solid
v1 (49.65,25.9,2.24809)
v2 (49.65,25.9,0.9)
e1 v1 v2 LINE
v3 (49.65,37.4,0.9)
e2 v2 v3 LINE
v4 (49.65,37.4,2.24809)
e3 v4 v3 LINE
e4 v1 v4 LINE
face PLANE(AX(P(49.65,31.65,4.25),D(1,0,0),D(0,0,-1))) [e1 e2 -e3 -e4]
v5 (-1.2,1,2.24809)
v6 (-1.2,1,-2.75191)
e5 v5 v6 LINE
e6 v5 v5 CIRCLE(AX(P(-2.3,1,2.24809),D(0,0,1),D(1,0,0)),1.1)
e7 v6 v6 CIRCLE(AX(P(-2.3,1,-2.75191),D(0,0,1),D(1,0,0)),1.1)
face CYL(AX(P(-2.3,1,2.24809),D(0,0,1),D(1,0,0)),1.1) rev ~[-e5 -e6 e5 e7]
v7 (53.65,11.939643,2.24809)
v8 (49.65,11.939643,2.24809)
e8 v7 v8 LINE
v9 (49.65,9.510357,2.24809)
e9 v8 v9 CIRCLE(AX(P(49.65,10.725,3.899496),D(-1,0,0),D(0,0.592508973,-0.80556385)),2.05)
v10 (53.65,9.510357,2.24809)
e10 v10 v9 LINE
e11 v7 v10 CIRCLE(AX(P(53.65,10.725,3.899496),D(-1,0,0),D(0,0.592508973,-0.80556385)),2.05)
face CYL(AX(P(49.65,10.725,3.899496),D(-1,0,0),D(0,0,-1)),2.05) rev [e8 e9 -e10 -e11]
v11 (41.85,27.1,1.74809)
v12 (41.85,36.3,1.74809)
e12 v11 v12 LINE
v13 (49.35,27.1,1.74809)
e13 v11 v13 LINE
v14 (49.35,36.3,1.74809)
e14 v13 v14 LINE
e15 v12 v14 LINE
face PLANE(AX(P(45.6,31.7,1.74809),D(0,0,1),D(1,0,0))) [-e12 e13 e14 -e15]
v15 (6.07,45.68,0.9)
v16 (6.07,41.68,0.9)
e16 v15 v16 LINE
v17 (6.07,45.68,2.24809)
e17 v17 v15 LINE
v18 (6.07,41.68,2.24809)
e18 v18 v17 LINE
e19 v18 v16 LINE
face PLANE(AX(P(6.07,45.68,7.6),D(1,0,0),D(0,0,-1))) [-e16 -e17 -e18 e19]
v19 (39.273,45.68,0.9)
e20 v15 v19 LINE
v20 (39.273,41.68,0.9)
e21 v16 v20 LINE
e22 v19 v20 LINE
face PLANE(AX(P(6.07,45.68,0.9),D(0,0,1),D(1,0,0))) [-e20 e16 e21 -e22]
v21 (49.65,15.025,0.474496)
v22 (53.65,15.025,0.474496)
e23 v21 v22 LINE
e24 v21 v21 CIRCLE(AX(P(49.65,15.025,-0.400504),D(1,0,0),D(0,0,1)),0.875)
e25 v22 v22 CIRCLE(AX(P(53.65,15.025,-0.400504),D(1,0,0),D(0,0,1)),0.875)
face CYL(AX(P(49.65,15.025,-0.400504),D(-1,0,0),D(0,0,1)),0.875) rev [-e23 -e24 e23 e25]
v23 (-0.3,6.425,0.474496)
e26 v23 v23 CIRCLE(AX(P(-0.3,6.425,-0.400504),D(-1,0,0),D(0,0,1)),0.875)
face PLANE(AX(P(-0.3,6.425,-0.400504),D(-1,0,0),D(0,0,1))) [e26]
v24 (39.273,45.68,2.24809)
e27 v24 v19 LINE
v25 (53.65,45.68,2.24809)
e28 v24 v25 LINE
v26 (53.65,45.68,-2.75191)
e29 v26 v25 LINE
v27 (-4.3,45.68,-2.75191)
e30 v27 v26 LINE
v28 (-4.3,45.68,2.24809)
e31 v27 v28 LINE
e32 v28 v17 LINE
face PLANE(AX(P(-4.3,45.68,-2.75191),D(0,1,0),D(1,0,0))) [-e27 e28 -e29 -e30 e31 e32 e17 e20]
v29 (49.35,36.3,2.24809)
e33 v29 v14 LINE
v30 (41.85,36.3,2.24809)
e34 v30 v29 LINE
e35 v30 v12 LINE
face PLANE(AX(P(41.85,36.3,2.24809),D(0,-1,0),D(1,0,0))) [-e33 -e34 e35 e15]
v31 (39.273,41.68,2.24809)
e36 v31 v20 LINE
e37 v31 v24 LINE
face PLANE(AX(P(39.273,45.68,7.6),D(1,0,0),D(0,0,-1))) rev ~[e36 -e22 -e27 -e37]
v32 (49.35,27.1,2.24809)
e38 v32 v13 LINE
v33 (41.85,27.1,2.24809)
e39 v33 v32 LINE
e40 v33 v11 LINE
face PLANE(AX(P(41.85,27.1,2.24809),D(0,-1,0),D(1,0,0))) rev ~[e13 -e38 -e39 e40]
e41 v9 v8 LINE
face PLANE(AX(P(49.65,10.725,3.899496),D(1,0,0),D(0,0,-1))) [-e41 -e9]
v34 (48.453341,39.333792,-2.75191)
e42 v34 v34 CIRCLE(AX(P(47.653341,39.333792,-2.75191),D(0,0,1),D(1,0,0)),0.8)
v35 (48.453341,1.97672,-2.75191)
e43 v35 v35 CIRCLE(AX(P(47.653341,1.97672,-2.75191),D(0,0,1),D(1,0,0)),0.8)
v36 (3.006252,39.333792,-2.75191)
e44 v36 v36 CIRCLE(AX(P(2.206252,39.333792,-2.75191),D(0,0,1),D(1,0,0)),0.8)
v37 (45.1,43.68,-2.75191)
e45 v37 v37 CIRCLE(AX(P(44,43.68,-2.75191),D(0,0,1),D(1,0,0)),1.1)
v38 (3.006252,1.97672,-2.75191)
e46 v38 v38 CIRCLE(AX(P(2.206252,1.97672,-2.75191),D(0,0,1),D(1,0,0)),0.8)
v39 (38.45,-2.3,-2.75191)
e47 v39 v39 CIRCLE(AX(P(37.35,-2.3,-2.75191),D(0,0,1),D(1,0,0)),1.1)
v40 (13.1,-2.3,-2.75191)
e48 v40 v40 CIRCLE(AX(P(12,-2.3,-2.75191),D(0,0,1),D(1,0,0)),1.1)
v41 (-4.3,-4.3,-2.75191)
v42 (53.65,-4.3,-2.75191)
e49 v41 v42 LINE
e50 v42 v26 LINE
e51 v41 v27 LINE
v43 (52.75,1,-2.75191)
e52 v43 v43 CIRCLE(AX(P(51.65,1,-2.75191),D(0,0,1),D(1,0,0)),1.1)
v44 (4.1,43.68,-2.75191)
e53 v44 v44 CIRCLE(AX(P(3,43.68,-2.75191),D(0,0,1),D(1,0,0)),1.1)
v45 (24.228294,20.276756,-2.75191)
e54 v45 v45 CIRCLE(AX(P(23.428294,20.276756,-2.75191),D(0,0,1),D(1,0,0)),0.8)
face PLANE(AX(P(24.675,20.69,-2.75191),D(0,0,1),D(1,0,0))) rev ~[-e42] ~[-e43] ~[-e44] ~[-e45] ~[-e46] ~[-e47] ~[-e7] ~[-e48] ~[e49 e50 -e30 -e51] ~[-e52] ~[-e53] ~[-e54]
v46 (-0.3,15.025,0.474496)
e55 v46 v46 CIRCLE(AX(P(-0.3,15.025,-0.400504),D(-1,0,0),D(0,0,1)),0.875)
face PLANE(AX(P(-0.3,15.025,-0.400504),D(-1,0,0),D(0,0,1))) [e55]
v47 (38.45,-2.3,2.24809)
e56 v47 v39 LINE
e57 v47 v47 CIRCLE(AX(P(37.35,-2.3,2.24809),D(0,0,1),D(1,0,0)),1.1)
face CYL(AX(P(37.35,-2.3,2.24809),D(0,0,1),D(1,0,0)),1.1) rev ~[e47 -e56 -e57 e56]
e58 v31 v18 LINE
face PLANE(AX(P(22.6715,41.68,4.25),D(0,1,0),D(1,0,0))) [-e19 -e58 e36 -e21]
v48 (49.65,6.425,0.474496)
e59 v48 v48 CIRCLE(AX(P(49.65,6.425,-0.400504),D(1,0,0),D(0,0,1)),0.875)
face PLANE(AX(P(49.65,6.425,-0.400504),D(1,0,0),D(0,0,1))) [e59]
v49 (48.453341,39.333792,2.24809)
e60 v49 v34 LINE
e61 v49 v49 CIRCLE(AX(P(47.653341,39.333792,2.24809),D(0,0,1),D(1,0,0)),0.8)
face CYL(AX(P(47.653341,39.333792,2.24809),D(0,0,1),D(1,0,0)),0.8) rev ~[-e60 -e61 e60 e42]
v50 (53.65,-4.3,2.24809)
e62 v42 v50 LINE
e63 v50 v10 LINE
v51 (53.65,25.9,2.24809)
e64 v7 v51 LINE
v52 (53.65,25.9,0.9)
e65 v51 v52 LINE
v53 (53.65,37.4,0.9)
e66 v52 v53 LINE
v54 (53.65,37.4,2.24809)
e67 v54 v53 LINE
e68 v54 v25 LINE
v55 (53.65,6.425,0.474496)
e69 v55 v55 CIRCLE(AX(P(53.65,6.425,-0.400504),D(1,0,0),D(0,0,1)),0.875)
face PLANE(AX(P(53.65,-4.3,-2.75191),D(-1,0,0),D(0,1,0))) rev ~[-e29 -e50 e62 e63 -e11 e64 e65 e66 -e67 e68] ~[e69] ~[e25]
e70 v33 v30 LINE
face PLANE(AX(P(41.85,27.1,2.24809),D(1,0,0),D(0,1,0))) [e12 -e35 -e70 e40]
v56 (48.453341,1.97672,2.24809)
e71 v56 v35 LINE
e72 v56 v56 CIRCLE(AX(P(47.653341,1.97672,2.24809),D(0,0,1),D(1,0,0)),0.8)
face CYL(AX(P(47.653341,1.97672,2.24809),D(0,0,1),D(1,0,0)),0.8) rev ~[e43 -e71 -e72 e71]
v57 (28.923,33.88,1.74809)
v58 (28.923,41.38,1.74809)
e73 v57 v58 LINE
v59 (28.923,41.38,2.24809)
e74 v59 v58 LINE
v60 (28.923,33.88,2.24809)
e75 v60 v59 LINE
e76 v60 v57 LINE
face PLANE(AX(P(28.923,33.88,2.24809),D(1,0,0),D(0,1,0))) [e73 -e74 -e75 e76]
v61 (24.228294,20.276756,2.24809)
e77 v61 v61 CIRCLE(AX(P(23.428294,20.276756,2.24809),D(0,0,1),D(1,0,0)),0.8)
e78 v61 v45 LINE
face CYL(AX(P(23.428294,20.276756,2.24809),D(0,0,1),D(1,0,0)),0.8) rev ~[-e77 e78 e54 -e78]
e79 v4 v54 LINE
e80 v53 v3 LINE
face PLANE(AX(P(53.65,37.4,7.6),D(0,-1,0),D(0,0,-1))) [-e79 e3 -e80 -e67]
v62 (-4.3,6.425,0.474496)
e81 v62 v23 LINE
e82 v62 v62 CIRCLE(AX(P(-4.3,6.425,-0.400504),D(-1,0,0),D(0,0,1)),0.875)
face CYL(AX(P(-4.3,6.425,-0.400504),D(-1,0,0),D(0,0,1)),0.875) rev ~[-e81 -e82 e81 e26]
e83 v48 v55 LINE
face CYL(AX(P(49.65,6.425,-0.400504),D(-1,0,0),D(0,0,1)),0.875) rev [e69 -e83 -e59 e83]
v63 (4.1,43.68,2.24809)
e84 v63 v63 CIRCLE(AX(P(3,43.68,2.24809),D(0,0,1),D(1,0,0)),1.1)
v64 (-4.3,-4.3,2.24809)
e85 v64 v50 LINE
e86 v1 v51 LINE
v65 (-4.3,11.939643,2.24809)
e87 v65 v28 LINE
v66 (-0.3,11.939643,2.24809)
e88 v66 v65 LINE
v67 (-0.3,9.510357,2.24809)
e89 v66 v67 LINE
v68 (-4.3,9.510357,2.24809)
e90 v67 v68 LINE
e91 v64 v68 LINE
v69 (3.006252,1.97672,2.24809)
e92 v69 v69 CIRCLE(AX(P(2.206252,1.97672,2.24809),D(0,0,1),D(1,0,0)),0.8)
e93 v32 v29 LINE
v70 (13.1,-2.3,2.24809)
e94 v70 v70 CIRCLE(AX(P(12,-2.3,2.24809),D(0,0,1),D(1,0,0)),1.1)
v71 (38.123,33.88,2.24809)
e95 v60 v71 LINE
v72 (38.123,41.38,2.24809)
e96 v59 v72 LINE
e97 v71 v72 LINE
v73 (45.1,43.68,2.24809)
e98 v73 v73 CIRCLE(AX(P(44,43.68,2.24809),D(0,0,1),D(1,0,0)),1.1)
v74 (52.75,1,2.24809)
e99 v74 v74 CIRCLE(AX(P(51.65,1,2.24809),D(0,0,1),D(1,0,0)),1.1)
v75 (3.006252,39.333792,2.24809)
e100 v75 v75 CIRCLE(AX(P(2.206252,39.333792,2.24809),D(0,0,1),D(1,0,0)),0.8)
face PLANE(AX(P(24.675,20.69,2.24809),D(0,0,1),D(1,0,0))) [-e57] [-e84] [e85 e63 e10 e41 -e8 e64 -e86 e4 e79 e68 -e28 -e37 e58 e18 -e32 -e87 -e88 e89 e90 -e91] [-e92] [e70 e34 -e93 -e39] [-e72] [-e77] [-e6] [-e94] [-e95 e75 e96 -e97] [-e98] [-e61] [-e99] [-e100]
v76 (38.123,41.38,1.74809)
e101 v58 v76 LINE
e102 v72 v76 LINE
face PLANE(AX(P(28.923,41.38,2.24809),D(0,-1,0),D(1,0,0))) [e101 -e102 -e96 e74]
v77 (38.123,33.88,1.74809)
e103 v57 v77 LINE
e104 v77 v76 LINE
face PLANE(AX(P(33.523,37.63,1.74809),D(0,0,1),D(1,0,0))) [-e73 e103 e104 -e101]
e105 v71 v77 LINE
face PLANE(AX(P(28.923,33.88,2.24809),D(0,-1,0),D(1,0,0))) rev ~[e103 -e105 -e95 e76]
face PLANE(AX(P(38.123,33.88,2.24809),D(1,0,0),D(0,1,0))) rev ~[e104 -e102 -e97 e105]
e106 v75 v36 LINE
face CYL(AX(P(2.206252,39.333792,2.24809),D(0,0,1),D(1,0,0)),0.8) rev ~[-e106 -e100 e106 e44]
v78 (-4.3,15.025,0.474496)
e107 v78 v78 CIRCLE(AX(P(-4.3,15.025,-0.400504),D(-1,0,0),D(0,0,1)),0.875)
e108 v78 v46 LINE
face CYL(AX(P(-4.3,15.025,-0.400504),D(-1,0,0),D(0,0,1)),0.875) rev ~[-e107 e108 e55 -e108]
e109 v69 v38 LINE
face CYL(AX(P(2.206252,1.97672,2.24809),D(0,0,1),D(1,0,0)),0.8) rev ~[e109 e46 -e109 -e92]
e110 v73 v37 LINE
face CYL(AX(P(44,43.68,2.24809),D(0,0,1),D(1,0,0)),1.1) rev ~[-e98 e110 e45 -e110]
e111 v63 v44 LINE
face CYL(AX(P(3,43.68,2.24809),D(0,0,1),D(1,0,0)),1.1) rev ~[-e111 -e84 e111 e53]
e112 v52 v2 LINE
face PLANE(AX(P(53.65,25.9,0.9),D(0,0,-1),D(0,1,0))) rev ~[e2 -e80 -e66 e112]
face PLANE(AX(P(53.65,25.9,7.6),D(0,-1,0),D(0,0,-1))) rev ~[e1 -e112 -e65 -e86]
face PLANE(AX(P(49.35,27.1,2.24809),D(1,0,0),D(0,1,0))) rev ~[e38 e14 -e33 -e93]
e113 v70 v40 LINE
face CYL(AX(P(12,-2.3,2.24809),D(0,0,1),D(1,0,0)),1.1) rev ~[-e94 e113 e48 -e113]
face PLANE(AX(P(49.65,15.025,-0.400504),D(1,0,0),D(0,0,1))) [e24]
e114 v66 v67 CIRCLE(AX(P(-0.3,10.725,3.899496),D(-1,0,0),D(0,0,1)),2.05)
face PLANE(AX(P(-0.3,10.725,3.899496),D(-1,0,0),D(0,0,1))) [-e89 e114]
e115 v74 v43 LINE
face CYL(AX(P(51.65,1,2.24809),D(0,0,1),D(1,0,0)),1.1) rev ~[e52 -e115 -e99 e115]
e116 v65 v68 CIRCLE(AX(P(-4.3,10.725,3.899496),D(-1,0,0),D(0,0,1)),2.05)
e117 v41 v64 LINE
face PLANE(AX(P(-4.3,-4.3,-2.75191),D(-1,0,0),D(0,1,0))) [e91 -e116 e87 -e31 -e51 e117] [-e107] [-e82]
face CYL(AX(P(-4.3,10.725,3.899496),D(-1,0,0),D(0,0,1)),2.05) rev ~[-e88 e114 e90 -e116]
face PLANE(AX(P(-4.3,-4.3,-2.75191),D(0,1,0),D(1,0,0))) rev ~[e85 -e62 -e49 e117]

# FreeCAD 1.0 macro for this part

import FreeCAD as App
import Part
import Sketcher

V = App.Vector
Q = App.Units.Quantity


def add_polygon(sketch, points):
    """Adds a closed chain of lines whose ends are joined by coincident constraints."""
    first, n = sketch.GeometryCount, len(points)
    for a, b in zip(points, points[1:] + points[:1]):
        sketch.addGeometry(Part.LineSegment(App.Vector(*a, 0), App.Vector(*b, 0)), False)
    for i in range(n):
        sketch.addConstraint(Sketcher.Constraint("Coincident", first + i, 2, first + (i + 1) % n, 1))

doc = App.newDocument("Part")
body = doc.addObject("PartDesign::Body", "Body")

# Sketch on XY plane
sketch1 = body.newObject("Sketcher::SketchObject", "Sketch")
sketch1.AttachmentSupport = (doc.getObject("XY_Plane"), [""])
sketch1.MapMode = "FlatFace"
sketch1.AttachmentOffset = App.Placement(V(0, 0, -2.75191), App.Rotation())
add_polygon(sketch1, [(-4, 46), (-4, -4), (54, -4), (54, 46)])  # lines 0-3
sketch1.addConstraint(Sketcher.Constraint("Vertical", 0))
sketch1.addConstraint(Sketcher.Constraint("Horizontal", 1))
sketch1.addConstraint(Sketcher.Constraint("Vertical", 2))
sketch1.addConstraint(Sketcher.Constraint("Horizontal", 3))
sketch1.addConstraint(Sketcher.Constraint("DistanceX", 1, 1, 1, 2, Q("57.95 mm")))
sketch1.addConstraint(Sketcher.Constraint("DistanceY", 0, 2, 0, 1, Q("49.98 mm")))
sketch1.addConstraint(Sketcher.Constraint("DistanceX", 0, 2, -1, 1, Q("4.3 mm")))
sketch1.addConstraint(Sketcher.Constraint("DistanceY", 0, 2, -1, 1, Q("4.3 mm")))
pad1 = body.newObject("PartDesign::Pad", "Pad")
pad1.Profile = sketch1
pad1.Length = 5

# Sketch on XY plane
sketch2 = body.newObject("Sketcher::SketchObject", "Sketch001")
sketch2.AttachmentSupport = (doc.getObject("XY_Plane"), [""])
sketch2.MapMode = "FlatFace"
sketch2.AttachmentOffset = App.Placement(V(0, 0, 2.24809), App.Rotation())
sketch2.addGeometry(Part.Circle(V(-2.3, 1, 0), V(0, 0, 1), 1.1), False)
sketch2.addGeometry(Part.Circle(V(51.6, 1, 0), V(0, 0, 1), 1.1), False)
sketch2.addGeometry(Part.Circle(V(12, -2.3, 0), V(0, 0, 1), 1.1), False)
sketch2.addGeometry(Part.Circle(V(37.4, -2.3, 0), V(0, 0, 1), 1.1), False)
sketch2.addGeometry(Part.Circle(V(3, 43.7, 0), V(0, 0, 1), 1.1), False)
sketch2.addGeometry(Part.Circle(V(44, 43.7, 0), V(0, 0, 1), 1.1), False)
sketch2.addConstraint(Sketcher.Constraint("Equal", 0, 1))
sketch2.addConstraint(Sketcher.Constraint("Equal", 1, 2))
sketch2.addConstraint(Sketcher.Constraint("Equal", 2, 3))
sketch2.addConstraint(Sketcher.Constraint("Equal", 3, 4))
sketch2.addConstraint(Sketcher.Constraint("Equal", 4, 5))
sketch2.addConstraint(Sketcher.Constraint("Horizontal", 0, 3, 1, 3))
sketch2.addConstraint(Sketcher.Constraint("Horizontal", 2, 3, 3, 3))
sketch2.addConstraint(Sketcher.Constraint("Horizontal", 4, 3, 5, 3))
sketch2.addConstraint(Sketcher.Constraint("Diameter", 0, Q("2.2 mm")))
sketch2.addConstraint(Sketcher.Constraint("DistanceY", -1, 1, 0, 3, Q("1 mm")))
sketch2.addConstraint(Sketcher.Constraint("DistanceX", -1, 1, 2, 3, Q("12 mm")))
sketch2.addConstraint(Sketcher.Constraint("DistanceX", -1, 1, 4, 3, Q("3 mm")))
sketch2.addConstraint(Sketcher.Constraint("DistanceX", -1, 1, 5, 3, Q("44 mm")))
sketch2.addConstraint(Sketcher.Constraint("DistanceX", 0, 3, -1, 1, Q("2.3 mm")))
sketch2.addConstraint(Sketcher.Constraint("DistanceY", 2, 3, -1, 1, Q("2.3 mm")))
sketch2.addConstraint(Sketcher.Constraint("DistanceX", 3, 3, 1, 3, Q("14.3 mm")))
sketch2.addConstraint(Sketcher.Constraint("DistanceX", -1, 1, 1, 3, Q("51.65 mm")))
sketch2.addConstraint(Sketcher.Constraint("DistanceY", -1, 1, 4, 3, Q("43.68 mm")))
pocket1 = body.newObject("PartDesign::Pocket", "Pocket")
pocket1.Profile = sketch2
pocket1.Type = "ThroughAll"

# Sketch on XY plane
sketch3 = body.newObject("Sketcher::SketchObject", "Sketch002")
sketch3.AttachmentSupport = (doc.getObject("XY_Plane"), [""])
sketch3.MapMode = "FlatFace"
sketch3.AttachmentOffset = App.Placement(V(0, 0, 2.24809), App.Rotation())
sketch3.addGeometry(Part.Circle(V(23.4, 20.3, 0), V(0, 0, 1), 0.8), False)
sketch3.addGeometry(Part.Circle(V(2.2, 39.3, 0), V(0, 0, 1), 0.8), False)
sketch3.addGeometry(Part.Circle(V(47.7, 39.3, 0), V(0, 0, 1), 0.8), False)
sketch3.addGeometry(Part.Circle(V(47.7, 2, 0), V(0, 0, 1), 0.8), False)
sketch3.addGeometry(Part.Circle(V(2.2, 2, 0), V(0, 0, 1), 0.8), False)
sketch3.addConstraint(Sketcher.Constraint("Equal", 0, 1))
sketch3.addConstraint(Sketcher.Constraint("Equal", 1, 2))
sketch3.addConstraint(Sketcher.Constraint("Equal", 2, 3))
sketch3.addConstraint(Sketcher.Constraint("Equal", 3, 4))
sketch3.addConstraint(Sketcher.Constraint("Horizontal", 1, 3, 2, 3))
sketch3.addConstraint(Sketcher.Constraint("Horizontal", 3, 3, 4, 3))
sketch3.addConstraint(Sketcher.Constraint("Vertical", 2, 3, 3, 3))
sketch3.addConstraint(Sketcher.Constraint("Vertical", 1, 3, 4, 3))
sketch3.addConstraint(Sketcher.Constraint("Diameter", 0, Q("1.6 mm")))
sketch3.addConstraint(Sketcher.Constraint("DistanceX", -1, 1, 1, 3, Q("2.206252 mm")))
sketch3.addConstraint(Sketcher.Constraint("DistanceY", -1, 1, 1, 3, Q("39.333792 mm")))
sketch3.addConstraint(Sketcher.Constraint("DistanceX", -1, 1, 2, 3, Q("47.653341 mm")))
sketch3.addConstraint(Sketcher.Constraint("DistanceY", -1, 1, 3, 3, Q("1.97672 mm")))
sketch3.addConstraint(Sketcher.Constraint("DistanceX", -1, 1, 0, 3, Q("23.428294 mm")))
sketch3.addConstraint(Sketcher.Constraint("DistanceY", -1, 1, 0, 3, Q("20.276756 mm")))
pocket2 = body.newObject("PartDesign::Pocket", "Pocket001")
pocket2.Profile = sketch3
pocket2.Type = "ThroughAll"

# Sketch on YZ plane
sketch4 = body.newObject("Sketcher::SketchObject", "Sketch003")
sketch4.AttachmentSupport = (doc.getObject("YZ_Plane"), [""])
sketch4.MapMode = "FlatFace"
sketch4.AttachmentOffset = App.Placement(V(0, 0, -4.3), App.Rotation())
sketch4.addGeometry(Part.Circle(V(10.7, 3.9, 0), V(0, 0, 1), 2), False)
sketch4.addConstraint(Sketcher.Constraint("Diameter", 0, Q("4.1 mm")))
sketch4.addConstraint(Sketcher.Constraint("DistanceX", -1, 1, 0, 3, Q("10.725 mm")))
sketch4.addConstraint(Sketcher.Constraint("DistanceY", -1, 1, 0, 3, Q("3.899496 mm")))
pocket3 = body.newObject("PartDesign::Pocket", "Pocket002")
pocket3.Profile = sketch4
pocket3.Length = 4
pocket3.Reversed = True

# Sketch on YZ plane
sketch5 = body.newObject("Sketcher::SketchObject", "Sketch004")
sketch5.AttachmentSupport = (doc.getObject("YZ_Plane"), [""])
sketch5.MapMode = "FlatFace"
sketch5.AttachmentOffset = App.Placement(V(0, 0, -4.3), App.Rotation())
sketch5.addGeometry(Part.Circle(V(6.4, -0.4, 0), V(0, 0, 1), 0.9), False)
sketch5.addGeometry(Part.Circle(V(15, -0.4, 0), V(0, 0, 1), 0.9), False)
sketch5.addConstraint(Sketcher.Constraint("Equal", 0, 1))
sketch5.addConstraint(Sketcher.Constraint("Horizontal", 0, 3, 1, 3))
sketch5.addConstraint(Sketcher.Constraint("Diameter", 0, Q("1.75 mm")))
sketch5.addConstraint(Sketcher.Constraint("DistanceX", 0, 3, 1, 3, Q("8.6 mm")))
sketch5.addConstraint(Sketcher.Constraint("DistanceX", -1, 1, 0, 3, Q("6.425 mm")))
sketch5.addConstraint(Sketcher.Constraint("DistanceY", 0, 3, -1, 1, Q("0.400504 mm")))
pocket4 = body.newObject("PartDesign::Pocket", "Pocket003")
pocket4.Profile = sketch5
pocket4.Length = 4
pocket4.Reversed = True

# Sketch on YZ plane
sketch6 = body.newObject("Sketcher::SketchObject", "Sketch005")
sketch6.AttachmentSupport = (doc.getObject("YZ_Plane"), [""])
sketch6.MapMode = "FlatFace"
sketch6.AttachmentOffset = App.Placement(V(0, 0, 49.65), App.Rotation())
sketch6.addGeometry(Part.Circle(V(10.7, 3.9, 0), V(0, 0, 1), 2), False)
sketch6.addConstraint(Sketcher.Constraint("Diameter", 0, Q("4.1 mm")))
sketch6.addConstraint(Sketcher.Constraint("DistanceX", -1, 1, 0, 3, Q("10.725 mm")))
sketch6.addConstraint(Sketcher.Constraint("DistanceY", -1, 1, 0, 3, Q("3.899496 mm")))
pocket5 = body.newObject("PartDesign::Pocket", "Pocket004")
pocket5.Profile = sketch6
pocket5.Length = 4
pocket5.Reversed = True

# Sketch on YZ plane
sketch7 = body.newObject("Sketcher::SketchObject", "Sketch006")
sketch7.AttachmentSupport = (doc.getObject("YZ_Plane"), [""])
sketch7.MapMode = "FlatFace"
sketch7.AttachmentOffset = App.Placement(V(0, 0, 49.65), App.Rotation())
sketch7.addGeometry(Part.Circle(V(6.4, -0.4, 0), V(0, 0, 1), 0.9), False)
sketch7.addGeometry(Part.Circle(V(15, -0.4, 0), V(0, 0, 1), 0.9), False)
sketch7.addConstraint(Sketcher.Constraint("Equal", 0, 1))
sketch7.addConstraint(Sketcher.Constraint("Horizontal", 0, 3, 1, 3))
sketch7.addConstraint(Sketcher.Constraint("Diameter", 0, Q("1.75 mm")))
sketch7.addConstraint(Sketcher.Constraint("DistanceX", 0, 3, 1, 3, Q("8.6 mm")))
sketch7.addConstraint(Sketcher.Constraint("DistanceX", -1, 1, 0, 3, Q("6.425 mm")))
sketch7.addConstraint(Sketcher.Constraint("DistanceY", 0, 3, -1, 1, Q("0.400504 mm")))
pocket6 = body.newObject("PartDesign::Pocket", "Pocket005")
pocket6.Profile = sketch7
pocket6.Length = 4
pocket6.Reversed = True

# Sketch on YZ plane
sketch8 = body.newObject("Sketcher::SketchObject", "Sketch007")
sketch8.AttachmentSupport = (doc.getObject("YZ_Plane"), [""])
sketch8.MapMode = "FlatFace"
sketch8.AttachmentOffset = App.Placement(V(0, 0, 53.65), App.Rotation())
add_polygon(sketch8, [(37, 8), (26, 8), (26, 1), (37, 1)])  # lines 0-3
sketch8.addConstraint(Sketcher.Constraint("Horizontal", 0))
sketch8.addConstraint(Sketcher.Constraint("Vertical", 1))
sketch8.addConstraint(Sketcher.Constraint("Horizontal", 2))
sketch8.addConstraint(Sketcher.Constraint("Vertical", 3))
sketch8.addConstraint(Sketcher.Constraint("DistanceX", 0, 2, 0, 1, Q("11.5 mm")))
sketch8.addConstraint(Sketcher.Constraint("DistanceY", 1, 2, 1, 1, Q("6.7 mm")))
sketch8.addConstraint(Sketcher.Constraint("DistanceX", -1, 1, 0, 2, Q("25.9 mm")))
sketch8.addConstraint(Sketcher.Constraint("DistanceY", -1, 1, 0, 2, Q("7.6 mm")))
pocket7 = body.newObject("PartDesign::Pocket", "Pocket006")
pocket7.Profile = sketch8
pocket7.Length = 4

# Sketch on XZ plane
sketch9 = body.newObject("Sketcher::SketchObject", "Sketch008")
sketch9.AttachmentSupport = (doc.getObject("XZ_Plane"), [""])
sketch9.MapMode = "FlatFace"
sketch9.AttachmentOffset = App.Placement(V(0, 0, -45.68), App.Rotation())
add_polygon(sketch9, [(6, 1), (6, 8), (39, 8), (39, 1)])  # lines 0-3
sketch9.addConstraint(Sketcher.Constraint("Vertical", 0))
sketch9.addConstraint(Sketcher.Constraint("Horizontal", 1))
sketch9.addConstraint(Sketcher.Constraint("Vertical", 2))
sketch9.addConstraint(Sketcher.Constraint("Horizontal", 3))
sketch9.addConstraint(Sketcher.Constraint("DistanceY", 0, 1, 0, 2, Q("6.7 mm")))
sketch9.addConstraint(Sketcher.Constraint("DistanceY", -1, 1, 0, 2, Q("7.6 mm")))
sketch9.addConstraint(Sketcher.Constraint("DistanceX", 1, 1, 1, 2, Q("33.203 mm")))
sketch9.addConstraint(Sketcher.Constraint("DistanceX", -1, 1, 0, 2, Q("6.07 mm")))
pocket8 = body.newObject("PartDesign::Pocket", "Pocket007")
pocket8.Profile = sketch9
pocket8.Length = 4
pocket8.Reversed = True

# Sketch on XY plane
sketch10 = body.newObject("Sketcher::SketchObject", "Sketch009")
sketch10.AttachmentSupport = (doc.getObject("XY_Plane"), [""])
sketch10.MapMode = "FlatFace"
sketch10.AttachmentOffset = App.Placement(V(0, 0, 2.24809), App.Rotation())
add_polygon(sketch10, [(42, 36), (42, 27), (49, 27), (49, 36)])  # lines 0-3
sketch10.addConstraint(Sketcher.Constraint("Vertical", 0))
sketch10.addConstraint(Sketcher.Constraint("Horizontal", 1))
sketch10.addConstraint(Sketcher.Constraint("Vertical", 2))
sketch10.addConstraint(Sketcher.Constraint("Horizontal", 3))
sketch10.addConstraint(Sketcher.Constraint("DistanceX", 1, 1, 1, 2, Q("7.5 mm")))
sketch10.addConstraint(Sketcher.Constraint("DistanceY", 0, 2, 0, 1, Q("9.2 mm")))
sketch10.addConstraint(Sketcher.Constraint("DistanceY", -1, 1, 0, 2, Q("27.1 mm")))
sketch10.addConstraint(Sketcher.Constraint("DistanceX", -1, 1, 0, 2, Q("41.85 mm")))
pocket9 = body.newObject("PartDesign::Pocket", "Pocket008")
pocket9.Profile = sketch10
pocket9.Length = 0.5

# Sketch on XY plane
sketch11 = body.newObject("Sketcher::SketchObject", "Sketch010")
sketch11.AttachmentSupport = (doc.getObject("XY_Plane"), [""])
sketch11.MapMode = "FlatFace"
sketch11.AttachmentOffset = App.Placement(V(0, 0, 2.24809), App.Rotation())
add_polygon(sketch11, [(29, 41), (29, 34), (38, 34), (38, 41)])  # lines 0-3
sketch11.addConstraint(Sketcher.Constraint("Vertical", 0))
sketch11.addConstraint(Sketcher.Constraint("Horizontal", 1))
sketch11.addConstraint(Sketcher.Constraint("Vertical", 2))
sketch11.addConstraint(Sketcher.Constraint("Horizontal", 3))
sketch11.addConstraint(Sketcher.Constraint("DistanceX", 1, 1, 1, 2, Q("9.2 mm")))
sketch11.addConstraint(Sketcher.Constraint("DistanceY", 0, 2, 0, 1, Q("7.5 mm")))
sketch11.addConstraint(Sketcher.Constraint("DistanceY", -1, 1, 0, 2, Q("33.88 mm")))
sketch11.addConstraint(Sketcher.Constraint("DistanceX", -1, 1, 0, 2, Q("28.923 mm")))
pocket10 = body.newObject("PartDesign::Pocket", "Pocket009")
pocket10.Profile = sketch11
pocket10.Length = 0.5

doc.recompute()
